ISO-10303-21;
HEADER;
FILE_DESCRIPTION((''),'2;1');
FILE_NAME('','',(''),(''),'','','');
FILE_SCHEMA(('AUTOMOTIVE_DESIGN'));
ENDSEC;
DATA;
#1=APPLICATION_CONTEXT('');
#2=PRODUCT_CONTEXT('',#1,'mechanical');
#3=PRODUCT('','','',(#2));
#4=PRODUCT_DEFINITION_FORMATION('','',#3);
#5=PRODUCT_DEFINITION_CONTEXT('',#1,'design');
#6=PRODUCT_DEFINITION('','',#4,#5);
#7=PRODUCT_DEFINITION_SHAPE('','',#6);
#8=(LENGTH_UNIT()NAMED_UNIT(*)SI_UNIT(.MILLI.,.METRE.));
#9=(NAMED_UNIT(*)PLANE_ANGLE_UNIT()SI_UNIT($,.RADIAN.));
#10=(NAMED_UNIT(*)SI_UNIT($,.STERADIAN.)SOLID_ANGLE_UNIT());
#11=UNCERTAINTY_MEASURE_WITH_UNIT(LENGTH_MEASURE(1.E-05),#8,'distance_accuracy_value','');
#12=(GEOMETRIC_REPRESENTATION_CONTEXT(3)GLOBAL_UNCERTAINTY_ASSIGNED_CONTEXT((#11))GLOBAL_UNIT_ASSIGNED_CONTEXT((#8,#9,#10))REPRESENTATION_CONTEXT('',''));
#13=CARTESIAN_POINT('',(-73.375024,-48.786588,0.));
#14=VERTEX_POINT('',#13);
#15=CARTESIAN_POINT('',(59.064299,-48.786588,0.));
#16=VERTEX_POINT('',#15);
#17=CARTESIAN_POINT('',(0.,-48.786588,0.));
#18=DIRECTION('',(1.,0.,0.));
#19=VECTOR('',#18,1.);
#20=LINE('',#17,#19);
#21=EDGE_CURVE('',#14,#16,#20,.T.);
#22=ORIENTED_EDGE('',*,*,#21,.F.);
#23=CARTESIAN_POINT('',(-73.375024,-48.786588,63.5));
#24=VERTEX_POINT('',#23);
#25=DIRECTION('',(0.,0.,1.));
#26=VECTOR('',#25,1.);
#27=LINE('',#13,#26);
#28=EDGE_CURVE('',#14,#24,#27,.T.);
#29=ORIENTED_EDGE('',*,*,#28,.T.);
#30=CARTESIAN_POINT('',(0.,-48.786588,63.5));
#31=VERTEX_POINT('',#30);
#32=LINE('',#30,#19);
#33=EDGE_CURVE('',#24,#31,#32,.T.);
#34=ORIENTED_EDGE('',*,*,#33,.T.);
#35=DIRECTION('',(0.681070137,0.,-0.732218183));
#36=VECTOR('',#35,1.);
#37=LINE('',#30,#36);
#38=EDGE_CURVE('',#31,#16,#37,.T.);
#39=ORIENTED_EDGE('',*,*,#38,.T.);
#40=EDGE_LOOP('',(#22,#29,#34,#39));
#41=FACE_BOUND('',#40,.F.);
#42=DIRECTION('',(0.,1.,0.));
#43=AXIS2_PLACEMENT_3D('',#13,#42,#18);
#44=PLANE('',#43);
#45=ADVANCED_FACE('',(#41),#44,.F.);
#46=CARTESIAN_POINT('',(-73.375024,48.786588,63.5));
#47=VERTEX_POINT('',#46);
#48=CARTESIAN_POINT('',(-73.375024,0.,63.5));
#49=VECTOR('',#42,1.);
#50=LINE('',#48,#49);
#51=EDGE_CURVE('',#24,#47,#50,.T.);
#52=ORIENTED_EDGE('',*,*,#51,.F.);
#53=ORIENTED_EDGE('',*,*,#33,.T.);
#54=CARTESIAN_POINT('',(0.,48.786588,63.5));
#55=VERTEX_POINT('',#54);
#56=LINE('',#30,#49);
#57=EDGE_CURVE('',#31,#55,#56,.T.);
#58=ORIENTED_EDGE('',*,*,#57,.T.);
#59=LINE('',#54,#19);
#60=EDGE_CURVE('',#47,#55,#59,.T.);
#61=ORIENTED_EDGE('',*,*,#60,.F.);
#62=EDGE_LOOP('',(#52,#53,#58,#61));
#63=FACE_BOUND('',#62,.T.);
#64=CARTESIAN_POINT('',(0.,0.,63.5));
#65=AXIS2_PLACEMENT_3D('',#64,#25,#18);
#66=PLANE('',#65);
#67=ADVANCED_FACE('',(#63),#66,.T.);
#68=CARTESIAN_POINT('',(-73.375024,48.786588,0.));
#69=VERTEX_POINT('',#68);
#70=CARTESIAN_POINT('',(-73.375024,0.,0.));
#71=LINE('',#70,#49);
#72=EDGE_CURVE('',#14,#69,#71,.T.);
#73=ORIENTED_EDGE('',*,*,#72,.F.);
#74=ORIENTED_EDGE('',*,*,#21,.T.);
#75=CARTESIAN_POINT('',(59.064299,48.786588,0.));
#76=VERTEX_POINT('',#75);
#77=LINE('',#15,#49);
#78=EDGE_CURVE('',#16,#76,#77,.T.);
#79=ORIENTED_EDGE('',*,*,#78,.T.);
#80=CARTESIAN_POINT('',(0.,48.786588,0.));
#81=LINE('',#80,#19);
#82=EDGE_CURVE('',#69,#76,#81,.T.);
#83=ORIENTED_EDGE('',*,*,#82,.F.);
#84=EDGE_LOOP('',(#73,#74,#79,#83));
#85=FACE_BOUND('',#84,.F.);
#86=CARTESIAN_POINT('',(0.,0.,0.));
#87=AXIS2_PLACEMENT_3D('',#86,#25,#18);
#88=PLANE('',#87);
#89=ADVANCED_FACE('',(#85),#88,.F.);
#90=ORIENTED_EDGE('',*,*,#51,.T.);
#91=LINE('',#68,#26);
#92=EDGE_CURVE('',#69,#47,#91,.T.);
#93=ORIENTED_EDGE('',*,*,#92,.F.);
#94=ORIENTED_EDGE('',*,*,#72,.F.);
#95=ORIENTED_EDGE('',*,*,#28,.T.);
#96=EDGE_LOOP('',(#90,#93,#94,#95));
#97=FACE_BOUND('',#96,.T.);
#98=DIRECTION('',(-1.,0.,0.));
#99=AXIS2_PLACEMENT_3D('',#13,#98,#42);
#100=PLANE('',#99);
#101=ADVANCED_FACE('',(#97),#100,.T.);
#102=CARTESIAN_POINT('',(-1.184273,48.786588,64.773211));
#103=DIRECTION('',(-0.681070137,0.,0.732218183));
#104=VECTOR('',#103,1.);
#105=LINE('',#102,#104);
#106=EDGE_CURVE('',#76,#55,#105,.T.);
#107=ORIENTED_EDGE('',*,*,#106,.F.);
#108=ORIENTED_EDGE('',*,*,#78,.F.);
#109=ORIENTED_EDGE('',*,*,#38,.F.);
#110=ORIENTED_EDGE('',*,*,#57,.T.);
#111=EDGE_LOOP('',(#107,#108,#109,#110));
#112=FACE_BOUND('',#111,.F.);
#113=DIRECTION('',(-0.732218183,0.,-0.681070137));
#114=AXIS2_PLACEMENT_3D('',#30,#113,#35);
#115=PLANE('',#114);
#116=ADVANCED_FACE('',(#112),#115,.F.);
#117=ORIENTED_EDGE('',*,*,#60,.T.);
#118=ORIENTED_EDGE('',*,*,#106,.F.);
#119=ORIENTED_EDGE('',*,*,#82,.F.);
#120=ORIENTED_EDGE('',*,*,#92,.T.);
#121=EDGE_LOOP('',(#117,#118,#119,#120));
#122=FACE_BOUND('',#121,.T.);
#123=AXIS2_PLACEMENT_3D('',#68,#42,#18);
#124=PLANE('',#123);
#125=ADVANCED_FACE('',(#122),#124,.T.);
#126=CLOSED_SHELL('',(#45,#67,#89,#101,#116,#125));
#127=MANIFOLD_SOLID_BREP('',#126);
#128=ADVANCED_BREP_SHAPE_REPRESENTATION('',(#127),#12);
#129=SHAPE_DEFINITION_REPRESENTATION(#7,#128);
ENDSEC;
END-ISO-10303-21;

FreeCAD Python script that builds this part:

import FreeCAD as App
import Part
import Sketcher

V = App.Vector
Q = App.Units.Quantity


def add_polygon(sketch, points):
    """Adds a closed chain of lines whose ends are joined by coincident constraints."""
    first, n = sketch.GeometryCount, len(points)
    for a, b in zip(points, points[1:] + points[:1]):
        sketch.addGeometry(Part.LineSegment(App.Vector(*a, 0), App.Vector(*b, 0)), False)
    for i in range(n):
        sketch.addConstraint(Sketcher.Constraint("Coincident", first + i, 2, first + (i + 1) % n, 1))

doc = App.newDocument("Part")
body = doc.addObject("PartDesign::Body", "Body")

# Sketch on XY plane
sketch1 = doc.addObject("Sketcher::SketchObject", "Sketch")
body.addObject(sketch1)
sketch1.AttachmentSupport = (doc.XY_Plane, [""])
sketch1.MapMode = "FlatFace"
add_polygon(sketch1, [(-73.375024, 48.786588), (-73.375024, -48.786588), (73.375024, -48.786588), (73.375024, 48.786588)])  # lines 0-3
sketch1.addConstraint([
    Sketcher.Constraint("Vertical", 0),
    Sketcher.Constraint("Horizontal", 1),
    Sketcher.Constraint("Vertical", 2),
    Sketcher.Constraint("Horizontal", 3),
    Sketcher.Constraint("Symmetric", 0, 2, 2, 2, -1, 1),
    Sketcher.Constraint("DistanceX", 1, 1, 1, 2, 146.750048),
    Sketcher.Constraint("DistanceY", 0, 2, 0, 1, 97.573176),
])
pad1 = doc.addObject("PartDesign::Pad", "Pad")
body.addObject(pad1)
pad1.Profile = sketch1
pad1.Length = Q("2.5 in")

# Sketch on XZ plane
sketch2 = doc.addObject("Sketcher::SketchObject", "Sketch001")
body.addObject(sketch2)
sketch2.AttachmentSupport = (doc.XZ_Plane, [""])
sketch2.MapMode = "FlatFace"
sketch2.AttachmentOffset = App.Placement(V(0, 0, 48.786588), App.Rotation())
add_polygon(sketch2, [(73.375024, 63.5), (0, 63.5), (73.375024, 0)])  # lines 0-2
sketch2.addConstraint([
    Sketcher.Constraint("Horizontal", 0),
    Sketcher.Constraint("Vertical", 2),
    Sketcher.Constraint("PointOnObject", 0, 2, -2),
    Sketcher.Constraint("PointOnObject", 1, 2, -1),
    Sketcher.Constraint("DistanceY", 2, 1, 2, 2, Q("2.5 in")),
    Sketcher.Constraint("Distance", 1, 97.036819),
])
pocket1 = doc.addObject("PartDesign::Pocket", "Pocket")
body.addObject(pocket1)
pocket1.Profile = sketch2
pocket1.Type = "ThroughAll"

# Sketch on XZ plane
sketch3 = doc.addObject("Sketcher::SketchObject", "Sketch002")
body.addObject(sketch3)
sketch3.AttachmentSupport = (doc.XZ_Plane, [""])
sketch3.MapMode = "FlatFace"
sketch3.AttachmentOffset = App.Placement(V(0, 0, 48.786588), App.Rotation())
add_polygon(sketch3, [(0, 63.5), (59.064299, 0), (73.375024, 0)])  # lines 0-2
sketch3.addConstraint([
    Sketcher.Constraint("Horizontal", 1),
    Sketcher.Constraint("PointOnObject", 0, 2, -1),
    Sketcher.Constraint("PointOnObject", 2, 2, -2),
    Sketcher.Constraint("DistanceY", -1, 1, 2, 2, Q("2.5 in")),
    Sketcher.Constraint("DistanceX", -1, 1, 0, 2, 59.064299),
    Sketcher.Constraint("Distance", 2, 97.036819),
])
pocket2 = doc.addObject("PartDesign::Pocket", "Pocket001")
body.addObject(pocket2)
pocket2.Profile = sketch3
pocket2.Type = "ThroughAll"

doc.recompute()
